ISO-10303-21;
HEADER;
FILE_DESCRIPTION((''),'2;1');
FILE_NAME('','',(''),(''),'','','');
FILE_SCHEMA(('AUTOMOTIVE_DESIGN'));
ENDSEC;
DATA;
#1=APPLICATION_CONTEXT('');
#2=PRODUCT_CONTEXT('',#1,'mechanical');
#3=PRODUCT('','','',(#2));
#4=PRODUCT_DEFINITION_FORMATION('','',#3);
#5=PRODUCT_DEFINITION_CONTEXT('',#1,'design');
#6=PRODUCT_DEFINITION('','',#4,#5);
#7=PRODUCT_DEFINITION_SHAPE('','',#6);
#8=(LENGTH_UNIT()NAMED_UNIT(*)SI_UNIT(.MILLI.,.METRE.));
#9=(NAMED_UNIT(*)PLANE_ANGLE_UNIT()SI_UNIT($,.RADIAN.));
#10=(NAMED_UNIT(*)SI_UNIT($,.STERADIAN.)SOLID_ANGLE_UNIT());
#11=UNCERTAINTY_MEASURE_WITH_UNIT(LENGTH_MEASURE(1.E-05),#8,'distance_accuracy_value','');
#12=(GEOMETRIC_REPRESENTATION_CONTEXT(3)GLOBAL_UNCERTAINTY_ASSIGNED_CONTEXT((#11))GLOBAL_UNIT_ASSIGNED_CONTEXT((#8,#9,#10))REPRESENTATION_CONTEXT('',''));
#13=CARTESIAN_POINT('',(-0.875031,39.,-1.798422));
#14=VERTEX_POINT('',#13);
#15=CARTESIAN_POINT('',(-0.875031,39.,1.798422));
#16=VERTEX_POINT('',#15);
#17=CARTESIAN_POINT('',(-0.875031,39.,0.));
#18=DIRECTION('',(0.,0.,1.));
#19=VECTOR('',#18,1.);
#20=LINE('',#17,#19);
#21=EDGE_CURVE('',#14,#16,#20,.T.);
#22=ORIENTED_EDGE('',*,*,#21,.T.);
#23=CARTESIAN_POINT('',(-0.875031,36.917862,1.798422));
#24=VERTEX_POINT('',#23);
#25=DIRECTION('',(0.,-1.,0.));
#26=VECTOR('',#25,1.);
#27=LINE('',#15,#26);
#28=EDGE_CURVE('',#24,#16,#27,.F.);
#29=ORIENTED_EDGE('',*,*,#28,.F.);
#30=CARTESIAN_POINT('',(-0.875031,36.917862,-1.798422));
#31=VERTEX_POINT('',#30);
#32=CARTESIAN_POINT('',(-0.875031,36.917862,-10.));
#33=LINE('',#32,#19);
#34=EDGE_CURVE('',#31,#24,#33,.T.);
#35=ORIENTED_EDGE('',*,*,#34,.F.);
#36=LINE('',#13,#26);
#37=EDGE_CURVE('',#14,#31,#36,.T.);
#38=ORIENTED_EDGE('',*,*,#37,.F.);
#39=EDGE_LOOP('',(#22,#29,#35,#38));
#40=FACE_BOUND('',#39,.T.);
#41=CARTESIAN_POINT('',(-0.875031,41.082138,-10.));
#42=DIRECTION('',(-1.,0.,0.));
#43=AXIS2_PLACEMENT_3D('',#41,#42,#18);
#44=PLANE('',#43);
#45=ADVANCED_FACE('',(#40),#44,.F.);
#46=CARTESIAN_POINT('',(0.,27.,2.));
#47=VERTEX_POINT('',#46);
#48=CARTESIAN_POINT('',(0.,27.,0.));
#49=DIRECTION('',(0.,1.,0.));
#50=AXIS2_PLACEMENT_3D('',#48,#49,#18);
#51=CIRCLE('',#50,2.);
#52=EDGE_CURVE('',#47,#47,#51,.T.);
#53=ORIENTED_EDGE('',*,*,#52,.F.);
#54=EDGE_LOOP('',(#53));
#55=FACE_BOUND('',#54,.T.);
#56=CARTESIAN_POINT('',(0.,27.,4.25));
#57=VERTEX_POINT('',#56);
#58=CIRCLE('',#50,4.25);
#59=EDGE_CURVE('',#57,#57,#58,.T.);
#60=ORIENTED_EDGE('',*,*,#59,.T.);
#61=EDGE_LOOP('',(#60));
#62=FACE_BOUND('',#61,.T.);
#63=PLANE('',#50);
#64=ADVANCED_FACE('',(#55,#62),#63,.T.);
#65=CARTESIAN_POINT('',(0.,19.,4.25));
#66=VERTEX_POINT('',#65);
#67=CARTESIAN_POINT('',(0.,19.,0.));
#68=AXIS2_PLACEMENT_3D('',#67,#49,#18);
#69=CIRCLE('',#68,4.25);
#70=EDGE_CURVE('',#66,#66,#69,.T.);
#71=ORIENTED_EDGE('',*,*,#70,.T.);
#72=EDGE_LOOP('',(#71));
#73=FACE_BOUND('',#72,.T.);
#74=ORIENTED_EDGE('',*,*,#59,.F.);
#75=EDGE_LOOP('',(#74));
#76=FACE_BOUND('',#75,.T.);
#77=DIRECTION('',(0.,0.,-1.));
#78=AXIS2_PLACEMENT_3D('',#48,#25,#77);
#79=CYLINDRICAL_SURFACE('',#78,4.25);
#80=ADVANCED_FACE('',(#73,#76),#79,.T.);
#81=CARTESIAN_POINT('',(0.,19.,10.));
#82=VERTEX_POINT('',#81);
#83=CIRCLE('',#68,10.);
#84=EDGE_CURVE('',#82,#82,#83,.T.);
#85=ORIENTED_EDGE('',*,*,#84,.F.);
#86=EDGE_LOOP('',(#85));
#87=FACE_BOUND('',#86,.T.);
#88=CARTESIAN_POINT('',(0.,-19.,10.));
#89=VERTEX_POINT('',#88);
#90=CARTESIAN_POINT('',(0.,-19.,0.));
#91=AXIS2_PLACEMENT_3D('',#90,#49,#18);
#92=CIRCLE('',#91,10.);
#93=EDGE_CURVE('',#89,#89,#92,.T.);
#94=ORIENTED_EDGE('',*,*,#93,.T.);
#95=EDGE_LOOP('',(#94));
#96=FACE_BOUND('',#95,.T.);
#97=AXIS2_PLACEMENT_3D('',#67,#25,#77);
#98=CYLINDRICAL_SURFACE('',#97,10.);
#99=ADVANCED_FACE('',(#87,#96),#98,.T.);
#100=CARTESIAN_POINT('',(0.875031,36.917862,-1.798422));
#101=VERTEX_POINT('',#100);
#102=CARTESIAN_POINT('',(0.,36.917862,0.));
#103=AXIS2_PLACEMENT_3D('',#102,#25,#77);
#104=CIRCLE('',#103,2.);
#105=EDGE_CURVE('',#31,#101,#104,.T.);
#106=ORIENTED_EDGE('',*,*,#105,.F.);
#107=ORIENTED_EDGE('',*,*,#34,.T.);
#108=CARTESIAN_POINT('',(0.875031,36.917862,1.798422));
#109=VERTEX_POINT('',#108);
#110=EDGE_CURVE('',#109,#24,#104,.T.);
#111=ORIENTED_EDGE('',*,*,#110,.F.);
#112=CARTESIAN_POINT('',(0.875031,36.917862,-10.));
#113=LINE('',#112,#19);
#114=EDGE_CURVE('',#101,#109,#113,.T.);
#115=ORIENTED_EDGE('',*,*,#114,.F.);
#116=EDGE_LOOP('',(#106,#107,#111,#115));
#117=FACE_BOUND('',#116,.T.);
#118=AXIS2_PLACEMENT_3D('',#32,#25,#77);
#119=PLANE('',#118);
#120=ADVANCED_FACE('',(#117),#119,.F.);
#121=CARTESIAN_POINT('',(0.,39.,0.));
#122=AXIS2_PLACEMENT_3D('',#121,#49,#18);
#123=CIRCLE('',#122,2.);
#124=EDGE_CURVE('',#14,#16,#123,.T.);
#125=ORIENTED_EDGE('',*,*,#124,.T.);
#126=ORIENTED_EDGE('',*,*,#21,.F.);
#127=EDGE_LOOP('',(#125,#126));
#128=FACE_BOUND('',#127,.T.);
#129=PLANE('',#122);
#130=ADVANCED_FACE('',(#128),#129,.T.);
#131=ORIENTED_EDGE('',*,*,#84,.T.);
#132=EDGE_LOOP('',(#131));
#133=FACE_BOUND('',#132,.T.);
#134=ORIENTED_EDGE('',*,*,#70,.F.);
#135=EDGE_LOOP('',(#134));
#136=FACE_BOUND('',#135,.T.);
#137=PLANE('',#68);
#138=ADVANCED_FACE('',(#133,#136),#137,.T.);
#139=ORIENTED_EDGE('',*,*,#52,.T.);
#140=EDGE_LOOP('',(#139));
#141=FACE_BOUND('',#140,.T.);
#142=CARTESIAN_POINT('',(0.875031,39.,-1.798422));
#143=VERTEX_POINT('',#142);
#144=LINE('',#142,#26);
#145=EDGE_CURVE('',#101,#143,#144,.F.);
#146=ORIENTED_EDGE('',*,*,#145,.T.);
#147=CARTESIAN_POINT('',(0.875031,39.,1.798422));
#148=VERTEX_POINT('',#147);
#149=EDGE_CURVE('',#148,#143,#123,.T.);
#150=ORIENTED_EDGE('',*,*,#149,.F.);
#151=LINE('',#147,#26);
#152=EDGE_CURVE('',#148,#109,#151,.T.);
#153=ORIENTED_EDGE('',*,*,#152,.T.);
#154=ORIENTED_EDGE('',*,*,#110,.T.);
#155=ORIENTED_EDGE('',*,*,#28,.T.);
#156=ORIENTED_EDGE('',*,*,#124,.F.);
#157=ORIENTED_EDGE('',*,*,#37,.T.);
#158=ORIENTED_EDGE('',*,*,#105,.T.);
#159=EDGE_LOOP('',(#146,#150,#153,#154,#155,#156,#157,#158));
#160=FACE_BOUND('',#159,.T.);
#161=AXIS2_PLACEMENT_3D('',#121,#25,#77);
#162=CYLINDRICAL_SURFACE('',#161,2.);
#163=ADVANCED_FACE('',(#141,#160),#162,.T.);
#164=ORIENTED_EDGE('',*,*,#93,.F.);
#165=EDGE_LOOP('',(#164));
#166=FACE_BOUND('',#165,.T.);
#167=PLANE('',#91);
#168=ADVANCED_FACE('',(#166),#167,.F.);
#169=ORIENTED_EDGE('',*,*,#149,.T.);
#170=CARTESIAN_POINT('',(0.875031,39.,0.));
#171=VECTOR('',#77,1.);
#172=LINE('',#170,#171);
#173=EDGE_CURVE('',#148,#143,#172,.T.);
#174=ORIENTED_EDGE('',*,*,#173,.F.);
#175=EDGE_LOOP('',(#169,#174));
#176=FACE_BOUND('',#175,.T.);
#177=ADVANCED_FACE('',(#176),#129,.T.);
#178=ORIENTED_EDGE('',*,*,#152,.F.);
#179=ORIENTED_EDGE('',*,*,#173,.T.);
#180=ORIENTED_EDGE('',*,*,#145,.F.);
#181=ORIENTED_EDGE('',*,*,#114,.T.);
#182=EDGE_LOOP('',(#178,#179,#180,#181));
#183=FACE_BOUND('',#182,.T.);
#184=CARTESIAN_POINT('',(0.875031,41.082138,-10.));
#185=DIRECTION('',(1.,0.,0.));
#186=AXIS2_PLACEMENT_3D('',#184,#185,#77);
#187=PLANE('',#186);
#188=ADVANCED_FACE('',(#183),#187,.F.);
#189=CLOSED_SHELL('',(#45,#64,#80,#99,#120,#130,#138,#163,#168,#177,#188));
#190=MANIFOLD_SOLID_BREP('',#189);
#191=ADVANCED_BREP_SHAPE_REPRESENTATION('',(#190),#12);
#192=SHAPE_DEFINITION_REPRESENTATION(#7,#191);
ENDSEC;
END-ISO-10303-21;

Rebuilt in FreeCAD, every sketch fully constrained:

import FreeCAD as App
import Part
import Sketcher
Q = App.Units.Quantity

doc = App.newDocument("Part")
body = doc.addObject("PartDesign::Body", "Body")

sketch1 = doc.addObject("Sketcher::SketchObject", "Sketch")
body.addObject(sketch1)
sketch1.AttachmentSupport = (doc.XZ_Plane, [""])
sketch1.MapMode = "FlatFace"
sketch1.addGeometry(Part.Circle(App.Vector(0, 0, 0), App.Vector(0, 0, 1), 10), False)
sketch1.addConstraint([
    Sketcher.Constraint("Coincident", 0, 3, -1, 1),
    Sketcher.Constraint("Diameter", 0, Q("20 mm")),
])
pad1 = doc.addObject("PartDesign::Pad", "Pad")
body.addObject(pad1)
pad1.Profile = sketch1
pad1.Length = 38
pad1.Midplane = True

sketch2 = doc.addObject("Sketcher::SketchObject", "Sketch001")
body.addObject(sketch2)
sketch2.AttachmentSupport = (doc.XZ_Plane, [""])
sketch2.MapMode = "FlatFace"
sketch2.AttachmentOffset = App.Placement(App.Vector(0, 0, -19), App.Rotation())
sketch2.addGeometry(Part.Circle(App.Vector(0, 0, 0), App.Vector(0, 0, 1), 4.2), False)
sketch2.addConstraint([
    Sketcher.Constraint("Coincident", 0, 3, -1, 1),
    Sketcher.Constraint("Diameter", 0, Q("8.5 mm")),
])
pad2 = doc.addObject("PartDesign::Pad", "Pad001")
body.addObject(pad2)
pad2.Profile = sketch2
pad2.Length = 8
pad2.Reversed = True

sketch3 = doc.addObject("Sketcher::SketchObject", "Sketch002")
body.addObject(sketch3)
sketch3.AttachmentSupport = (doc.XZ_Plane, [""])
sketch3.MapMode = "FlatFace"
sketch3.AttachmentOffset = App.Placement(App.Vector(0, 0, -27), App.Rotation())
sketch3.addGeometry(Part.Circle(App.Vector(0, 0, 0), App.Vector(0, 0, 1), 2), False)
sketch3.addConstraint([
    Sketcher.Constraint("Coincident", 0, 3, -1, 1),
    Sketcher.Constraint("Diameter", 0, Q("4 mm")),
])
pad3 = doc.addObject("PartDesign::Pad", "Pad002")
body.addObject(pad3)
pad3.Profile = sketch3
pad3.Length = 12
pad3.Reversed = True

sketch4 = doc.addObject("Sketcher::SketchObject", "Sketch003")
body.addObject(sketch4)
sketch4.AttachmentSupport = (doc.XY_Plane, [""])
sketch4.MapMode = "FlatFace"
sketch4.addGeometry([
    Part.LineSegment(App.Vector(-0.9, 41.1, 0), App.Vector(-0.9, 36.9, 0)),
    Part.LineSegment(App.Vector(-0.9, 36.9, 0), App.Vector(0.9, 36.9, 0)),
    Part.LineSegment(App.Vector(0.9, 36.9, 0), App.Vector(0.9, 41.1, 0)),
    Part.LineSegment(App.Vector(0.9, 41.1, 0), App.Vector(-0.9, 41.1, 0)),
], False)
sketch4.addConstraint([
    Sketcher.Constraint("Coincident", 0, 2, 1, 1),
    Sketcher.Constraint("Coincident", 1, 2, 2, 1),
    Sketcher.Constraint("Coincident", 2, 2, 3, 1),
    Sketcher.Constraint("Coincident", 3, 2, 0, 1),
    Sketcher.Constraint("Vertical", 0),
    Sketcher.Constraint("Horizontal", 1),
    Sketcher.Constraint("Vertical", 2),
    Sketcher.Constraint("Horizontal", 3),
    Sketcher.Constraint("DistanceX", 1, 1, 1, 2, Q("1.750062 mm")),
    Sketcher.Constraint("DistanceY", 0, 2, 0, 1, Q("4.164276 mm")),
    Sketcher.Constraint("DistanceX", 0, 2, -1, 1, Q("0.875031 mm")),
    Sketcher.Constraint("DistanceY", -1, 1, 0, 2, Q("36.917862 mm")),
])
pocket1 = doc.addObject("PartDesign::Pocket", "Pocket")
body.addObject(pocket1)
pocket1.Profile = sketch4
pocket1.Type = "ThroughAll"
pocket1.Midplane = True

doc.recompute()
